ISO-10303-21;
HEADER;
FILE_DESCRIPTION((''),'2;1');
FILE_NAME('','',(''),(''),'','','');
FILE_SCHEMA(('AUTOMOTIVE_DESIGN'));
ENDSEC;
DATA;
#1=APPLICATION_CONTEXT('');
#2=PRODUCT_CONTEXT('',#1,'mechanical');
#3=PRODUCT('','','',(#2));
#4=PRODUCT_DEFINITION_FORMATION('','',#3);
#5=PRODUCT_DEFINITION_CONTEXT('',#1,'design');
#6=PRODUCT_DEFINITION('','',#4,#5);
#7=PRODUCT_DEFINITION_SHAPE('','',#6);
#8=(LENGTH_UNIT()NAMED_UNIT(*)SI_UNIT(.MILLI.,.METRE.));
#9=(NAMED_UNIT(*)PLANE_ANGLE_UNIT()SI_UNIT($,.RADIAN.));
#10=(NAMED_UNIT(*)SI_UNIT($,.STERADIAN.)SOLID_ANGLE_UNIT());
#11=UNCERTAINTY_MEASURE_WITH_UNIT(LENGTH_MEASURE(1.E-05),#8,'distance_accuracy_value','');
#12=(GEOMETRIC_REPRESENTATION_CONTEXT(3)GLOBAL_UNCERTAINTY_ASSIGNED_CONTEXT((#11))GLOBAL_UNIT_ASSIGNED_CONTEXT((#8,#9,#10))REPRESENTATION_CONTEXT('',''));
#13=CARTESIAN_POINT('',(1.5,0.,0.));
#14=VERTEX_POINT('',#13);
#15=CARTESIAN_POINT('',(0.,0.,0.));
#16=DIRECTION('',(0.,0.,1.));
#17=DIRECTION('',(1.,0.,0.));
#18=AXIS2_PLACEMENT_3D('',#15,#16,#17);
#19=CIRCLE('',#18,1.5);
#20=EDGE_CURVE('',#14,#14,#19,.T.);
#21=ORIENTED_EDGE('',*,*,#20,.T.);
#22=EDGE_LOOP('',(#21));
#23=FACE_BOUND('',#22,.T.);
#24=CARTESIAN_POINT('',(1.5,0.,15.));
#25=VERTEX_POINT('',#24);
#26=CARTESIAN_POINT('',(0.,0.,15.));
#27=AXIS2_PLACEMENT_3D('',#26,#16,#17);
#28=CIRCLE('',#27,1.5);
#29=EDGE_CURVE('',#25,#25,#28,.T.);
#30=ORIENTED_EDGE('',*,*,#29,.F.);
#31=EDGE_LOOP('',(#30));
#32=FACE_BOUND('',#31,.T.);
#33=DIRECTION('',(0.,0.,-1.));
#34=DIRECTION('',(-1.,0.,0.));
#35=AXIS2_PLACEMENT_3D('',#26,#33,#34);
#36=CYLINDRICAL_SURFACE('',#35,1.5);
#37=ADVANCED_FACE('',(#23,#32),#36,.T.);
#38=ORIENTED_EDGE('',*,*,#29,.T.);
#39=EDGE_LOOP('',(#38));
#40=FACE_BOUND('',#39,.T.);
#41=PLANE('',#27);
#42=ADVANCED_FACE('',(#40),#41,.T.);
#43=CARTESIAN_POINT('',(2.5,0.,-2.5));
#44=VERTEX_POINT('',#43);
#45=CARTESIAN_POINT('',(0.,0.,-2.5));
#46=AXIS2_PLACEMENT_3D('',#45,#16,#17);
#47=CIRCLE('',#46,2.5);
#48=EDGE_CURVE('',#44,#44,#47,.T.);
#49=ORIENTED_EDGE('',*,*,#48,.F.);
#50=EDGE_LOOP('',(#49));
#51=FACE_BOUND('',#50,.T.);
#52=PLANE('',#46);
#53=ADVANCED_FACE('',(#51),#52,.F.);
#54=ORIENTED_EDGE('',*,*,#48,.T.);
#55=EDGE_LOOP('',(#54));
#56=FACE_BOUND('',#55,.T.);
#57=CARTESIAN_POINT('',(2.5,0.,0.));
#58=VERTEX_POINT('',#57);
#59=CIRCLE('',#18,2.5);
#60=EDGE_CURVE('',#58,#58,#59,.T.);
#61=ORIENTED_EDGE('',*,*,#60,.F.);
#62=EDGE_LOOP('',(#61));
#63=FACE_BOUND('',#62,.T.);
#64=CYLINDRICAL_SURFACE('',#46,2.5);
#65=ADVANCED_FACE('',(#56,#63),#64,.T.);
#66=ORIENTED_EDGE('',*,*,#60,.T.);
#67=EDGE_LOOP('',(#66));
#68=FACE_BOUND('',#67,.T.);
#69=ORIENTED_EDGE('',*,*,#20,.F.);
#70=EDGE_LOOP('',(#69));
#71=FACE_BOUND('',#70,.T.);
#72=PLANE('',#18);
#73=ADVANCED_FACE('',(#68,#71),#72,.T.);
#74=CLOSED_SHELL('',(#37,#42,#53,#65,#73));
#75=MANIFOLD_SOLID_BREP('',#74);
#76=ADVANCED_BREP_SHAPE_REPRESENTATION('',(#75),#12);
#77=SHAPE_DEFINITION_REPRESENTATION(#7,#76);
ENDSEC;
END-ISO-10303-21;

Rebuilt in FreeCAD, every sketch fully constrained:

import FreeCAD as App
import Part
import Sketcher
Q = App.Units.Quantity

doc = App.newDocument("Part")
params = doc.addObject("Spreadsheet::Sheet", "Params")
for row, (alias, value) in enumerate([
    ("sketch1_diameter", "5 mm"),
    ("pad1_length", "2.5 mm"),
    ("sketch2_diameter", "3 mm"),
    ("pad2_length", "15 mm"),
], start=1):
    params.set(f"A{row}", alias)
    params.set(f"B{row}", "=" + value)
    params.setAlias(f"B{row}", alias)

body = doc.addObject("PartDesign::Body", "Body")

sketch1 = doc.addObject("Sketcher::SketchObject", "Sketch")
body.addObject(sketch1)
sketch1.AttachmentSupport = (doc.XY_Plane, [""])
sketch1.MapMode = "FlatFace"
sketch1.addGeometry(Part.Circle(App.Vector(0, 0, 0), App.Vector(0, 0, 1), 2.5), False)
sketch1.addConstraint(Sketcher.Constraint("Coincident", 0, 3, -1, 1))
sketch1.addConstraint(Sketcher.Constraint("Diameter", 0, Q("5 mm")))
sketch1.setExpression("Constraints[1]", "Params.sketch1_diameter")
pad1 = doc.addObject("PartDesign::Pad", "Pad")
body.addObject(pad1)
pad1.Profile = sketch1
pad1.setExpression("Length", "Params.pad1_length")
pad1.Reversed = True

sketch2 = doc.addObject("Sketcher::SketchObject", "Sketch001")
body.addObject(sketch2)
sketch2.AttachmentSupport = (doc.XY_Plane, [""])
sketch2.MapMode = "FlatFace"
sketch2.addGeometry(Part.Circle(App.Vector(0, 0, 0), App.Vector(0, 0, 1), 1.5), False)
sketch2.addConstraint(Sketcher.Constraint("Coincident", 0, 3, -1, 1))
sketch2.addConstraint(Sketcher.Constraint("Diameter", 0, Q("3 mm")))
sketch2.setExpression("Constraints[1]", "Params.sketch2_diameter")
pad2 = doc.addObject("PartDesign::Pad", "Pad001")
body.addObject(pad2)
pad2.Profile = sketch2
pad2.setExpression("Length", "Params.pad2_length")

doc.recompute()
